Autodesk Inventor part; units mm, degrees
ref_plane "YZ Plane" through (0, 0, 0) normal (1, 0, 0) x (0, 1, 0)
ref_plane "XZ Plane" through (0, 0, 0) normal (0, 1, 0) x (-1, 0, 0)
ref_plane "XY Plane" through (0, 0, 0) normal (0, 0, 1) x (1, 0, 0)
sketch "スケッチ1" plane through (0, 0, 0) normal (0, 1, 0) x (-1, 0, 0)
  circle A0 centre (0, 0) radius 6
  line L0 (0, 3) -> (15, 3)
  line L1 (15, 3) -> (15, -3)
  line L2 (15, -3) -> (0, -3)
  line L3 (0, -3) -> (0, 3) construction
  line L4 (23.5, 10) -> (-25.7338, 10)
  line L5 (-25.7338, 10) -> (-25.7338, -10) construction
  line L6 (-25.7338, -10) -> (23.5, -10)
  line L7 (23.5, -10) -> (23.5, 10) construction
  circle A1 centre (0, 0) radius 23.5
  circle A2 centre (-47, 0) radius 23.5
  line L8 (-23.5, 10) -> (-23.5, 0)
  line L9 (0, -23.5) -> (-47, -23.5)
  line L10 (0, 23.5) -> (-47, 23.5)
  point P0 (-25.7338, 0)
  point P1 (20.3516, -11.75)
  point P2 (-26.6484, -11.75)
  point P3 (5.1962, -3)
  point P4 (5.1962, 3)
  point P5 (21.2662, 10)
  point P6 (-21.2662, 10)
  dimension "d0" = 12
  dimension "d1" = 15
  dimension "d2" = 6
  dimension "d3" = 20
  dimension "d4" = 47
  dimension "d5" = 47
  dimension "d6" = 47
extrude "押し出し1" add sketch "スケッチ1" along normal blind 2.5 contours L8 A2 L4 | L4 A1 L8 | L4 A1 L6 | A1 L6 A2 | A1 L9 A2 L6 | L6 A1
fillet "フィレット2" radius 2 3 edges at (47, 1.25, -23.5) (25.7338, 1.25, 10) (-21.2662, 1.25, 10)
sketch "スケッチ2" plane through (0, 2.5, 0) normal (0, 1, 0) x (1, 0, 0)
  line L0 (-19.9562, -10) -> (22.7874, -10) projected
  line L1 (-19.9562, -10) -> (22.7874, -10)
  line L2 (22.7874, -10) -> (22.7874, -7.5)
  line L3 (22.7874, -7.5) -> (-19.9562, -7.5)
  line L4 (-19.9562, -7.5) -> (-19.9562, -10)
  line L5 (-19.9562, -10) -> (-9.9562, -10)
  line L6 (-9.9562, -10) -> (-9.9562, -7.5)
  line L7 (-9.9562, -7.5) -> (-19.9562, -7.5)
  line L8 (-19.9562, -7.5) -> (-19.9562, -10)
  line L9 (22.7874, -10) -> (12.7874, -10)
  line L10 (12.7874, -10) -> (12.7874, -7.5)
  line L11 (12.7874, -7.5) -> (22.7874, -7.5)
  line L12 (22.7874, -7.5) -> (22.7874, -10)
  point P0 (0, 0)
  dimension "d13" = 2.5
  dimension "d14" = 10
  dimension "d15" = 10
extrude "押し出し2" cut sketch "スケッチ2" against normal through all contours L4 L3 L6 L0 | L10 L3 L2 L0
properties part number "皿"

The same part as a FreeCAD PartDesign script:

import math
import FreeCAD as App
import Part
import Sketcher
Q = App.Units.Quantity


def edges_at(feature, points):
    """Names of the edges that pass closest to the given points."""
    edges = feature.Shape.Edges
    near = lambda p: min(range(len(edges)), key=lambda i: edges[i].distToShape(Part.Vertex(*p))[0])
    return sorted({f"Edge{near(p) + 1}" for p in points})

doc = App.newDocument("Part")
body = doc.addObject("PartDesign::Body", "Body")

# Sketch on XZ plane
sketch1 = doc.addObject("Sketcher::SketchObject", "Sketch")
body.addObject(sketch1)
sketch1.AttachmentSupport = (doc.XZ_Plane, [""])
sketch1.MapMode = "FlatFace"
sketch1.addGeometry([
    Part.ArcOfCircle(Part.Circle(App.Vector(47, 0, 0), App.Vector(0, 0, 1), 24), math.radians(155), math.radians(270)),  # 0
    Part.LineSegment(App.Vector(47, -24, 0), App.Vector(0, -24, 0)),  # 1
    Part.ArcOfCircle(Part.Circle(App.Vector(0, 0, 0), App.Vector(0, 0, 1), 24), math.radians(155), math.radians(270)),  # 2
    Part.LineSegment(App.Vector(-21, 10, 0), App.Vector(26, 10, 0)),  # 3
    Part.LineSegment(App.Vector(-5, 3, 0), App.Vector(-15, 3, 0)),  # 4
    Part.LineSegment(App.Vector(-15, 3, 0), App.Vector(-15, -3, 0)),  # 5
    Part.LineSegment(App.Vector(-15, -3, 0), App.Vector(-5, -3, 0)),  # 6
    Part.ArcOfCircle(Part.Circle(App.Vector(0, 0, 0), App.Vector(0, 0, 1), 6), math.radians(-150), math.radians(150)),  # 7
], False)
sketch1.addConstraint([
    Sketcher.Constraint("Tangent", 0, 2, 1, 1),
    Sketcher.Constraint("Tangent", 1, 2, 2, 2),
    Sketcher.Constraint("Coincident", 2, 1, 3, 1),
    Sketcher.Constraint("Coincident", 3, 2, 0, 1),
    Sketcher.Constraint("Coincident", 4, 2, 5, 1),
    Sketcher.Constraint("Coincident", 5, 2, 6, 1),
    Sketcher.Constraint("Coincident", 6, 2, 7, 1),
    Sketcher.Constraint("Coincident", 7, 2, 4, 1),
    Sketcher.Constraint("Horizontal", 1),
    Sketcher.Constraint("Horizontal", 3),
    Sketcher.Constraint("Horizontal", 4),
    Sketcher.Constraint("Vertical", 5),
    Sketcher.Constraint("Horizontal", 6),
    Sketcher.Constraint("Coincident", 2, 3, -1, 1),
    Sketcher.Constraint("Coincident", 7, 3, -1, 1),
    Sketcher.Constraint("Equal", 0, 2),
    Sketcher.Constraint("Vertical", 6, 2, 7, 2),
    Sketcher.Constraint("Radius", 7, Q("6 mm")),
    Sketcher.Constraint("Radius", 0, Q("23.5 mm")),
    Sketcher.Constraint("DistanceX", 1, 2, 1, 1, Q("47 mm")),
    Sketcher.Constraint("DistanceY", 5, 2, 5, 1, Q("6 mm")),
    Sketcher.Constraint("DistanceX", 4, 2, -1, 1, Q("15 mm")),
    Sketcher.Constraint("DistanceY", -1, 1, 2, 1, Q("10 mm")),
])
pad1 = doc.addObject("PartDesign::Pad", "Pad")
body.addObject(pad1)
pad1.Profile = sketch1
pad1.Length = 2.5
pad1.Reversed = True
doc.recompute()

fillet = doc.addObject("PartDesign::Fillet", "Fillet")
body.addObject(fillet)
fillet.Base = (pad1, edges_at(pad1, [(47, 1.25, -23.5), (25.734, 1.25, 10), (-21.266, 1.25, 10)]))
fillet.Radius = 2

# Sketch on XZ plane
sketch2 = doc.addObject("Sketcher::SketchObject", "Sketch001")
body.addObject(sketch2)
sketch2.AttachmentSupport = (doc.XZ_Plane, [""])
sketch2.MapMode = "FlatFace"
sketch2.AttachmentOffset = App.Placement(App.Vector(0, 0, -2.5), App.Rotation())
sketch2.addGeometry([
    Part.LineSegment(App.Vector(-20, 7.5, 0), App.Vector(-20, 10, 0)),  # 0
    Part.LineSegment(App.Vector(-20, 10, 0), App.Vector(-10, 10, 0)),  # 1
    Part.LineSegment(App.Vector(-10, 10, 0), App.Vector(-10, 7.5, 0)),  # 2
    Part.LineSegment(App.Vector(-10, 7.5, 0), App.Vector(-20, 7.5, 0)),  # 3
    Part.LineSegment(App.Vector(12.8, 7.5, 0), App.Vector(12.8, 10, 0)),  # 4
    Part.LineSegment(App.Vector(12.8, 10, 0), App.Vector(22.8, 10, 0)),  # 5
    Part.LineSegment(App.Vector(22.8, 10, 0), App.Vector(22.8, 7.5, 0)),  # 6
    Part.LineSegment(App.Vector(22.8, 7.5, 0), App.Vector(12.8, 7.5, 0)),  # 7
], False)
sketch2.addConstraint([
    Sketcher.Constraint("Coincident", 0, 2, 1, 1),
    Sketcher.Constraint("Coincident", 1, 2, 2, 1),
    Sketcher.Constraint("Coincident", 2, 2, 3, 1),
    Sketcher.Constraint("Coincident", 3, 2, 0, 1),
    Sketcher.Constraint("Coincident", 4, 2, 5, 1),
    Sketcher.Constraint("Coincident", 5, 2, 6, 1),
    Sketcher.Constraint("Coincident", 6, 2, 7, 1),
    Sketcher.Constraint("Coincident", 7, 2, 4, 1),
    Sketcher.Constraint("Vertical", 0),
    Sketcher.Constraint("Horizontal", 1),
    Sketcher.Constraint("Vertical", 2),
    Sketcher.Constraint("Horizontal", 3),
    Sketcher.Constraint("Vertical", 4),
    Sketcher.Constraint("Horizontal", 5),
    Sketcher.Constraint("Vertical", 6),
    Sketcher.Constraint("Horizontal", 7),
    Sketcher.Constraint("Horizontal", 1, 2, 4, 2),
    Sketcher.Constraint("Horizontal", 3, 2, 6, 2),
    Sketcher.Constraint("Equal", 3, 5),
    Sketcher.Constraint("DistanceX", 1, 1, 1, 2, Q("10 mm")),
    Sketcher.Constraint("DistanceY", 0, 1, 0, 2, Q("2.5 mm")),
    Sketcher.Constraint("DistanceY", -1, 1, 0, 2, Q("10 mm")),
    Sketcher.Constraint("DistanceX", 0, 2, -1, 1, Q("19.9562 mm")),
    Sketcher.Constraint("DistanceX", -1, 1, 4, 2, Q("12.7874 mm")),
])
pocket1 = doc.addObject("PartDesign::Pocket", "Pocket")
body.addObject(pocket1)
pocket1.Profile = sketch2
pocket1.Type = "ThroughAll"
pocket1.Reversed = True

doc.recompute()
